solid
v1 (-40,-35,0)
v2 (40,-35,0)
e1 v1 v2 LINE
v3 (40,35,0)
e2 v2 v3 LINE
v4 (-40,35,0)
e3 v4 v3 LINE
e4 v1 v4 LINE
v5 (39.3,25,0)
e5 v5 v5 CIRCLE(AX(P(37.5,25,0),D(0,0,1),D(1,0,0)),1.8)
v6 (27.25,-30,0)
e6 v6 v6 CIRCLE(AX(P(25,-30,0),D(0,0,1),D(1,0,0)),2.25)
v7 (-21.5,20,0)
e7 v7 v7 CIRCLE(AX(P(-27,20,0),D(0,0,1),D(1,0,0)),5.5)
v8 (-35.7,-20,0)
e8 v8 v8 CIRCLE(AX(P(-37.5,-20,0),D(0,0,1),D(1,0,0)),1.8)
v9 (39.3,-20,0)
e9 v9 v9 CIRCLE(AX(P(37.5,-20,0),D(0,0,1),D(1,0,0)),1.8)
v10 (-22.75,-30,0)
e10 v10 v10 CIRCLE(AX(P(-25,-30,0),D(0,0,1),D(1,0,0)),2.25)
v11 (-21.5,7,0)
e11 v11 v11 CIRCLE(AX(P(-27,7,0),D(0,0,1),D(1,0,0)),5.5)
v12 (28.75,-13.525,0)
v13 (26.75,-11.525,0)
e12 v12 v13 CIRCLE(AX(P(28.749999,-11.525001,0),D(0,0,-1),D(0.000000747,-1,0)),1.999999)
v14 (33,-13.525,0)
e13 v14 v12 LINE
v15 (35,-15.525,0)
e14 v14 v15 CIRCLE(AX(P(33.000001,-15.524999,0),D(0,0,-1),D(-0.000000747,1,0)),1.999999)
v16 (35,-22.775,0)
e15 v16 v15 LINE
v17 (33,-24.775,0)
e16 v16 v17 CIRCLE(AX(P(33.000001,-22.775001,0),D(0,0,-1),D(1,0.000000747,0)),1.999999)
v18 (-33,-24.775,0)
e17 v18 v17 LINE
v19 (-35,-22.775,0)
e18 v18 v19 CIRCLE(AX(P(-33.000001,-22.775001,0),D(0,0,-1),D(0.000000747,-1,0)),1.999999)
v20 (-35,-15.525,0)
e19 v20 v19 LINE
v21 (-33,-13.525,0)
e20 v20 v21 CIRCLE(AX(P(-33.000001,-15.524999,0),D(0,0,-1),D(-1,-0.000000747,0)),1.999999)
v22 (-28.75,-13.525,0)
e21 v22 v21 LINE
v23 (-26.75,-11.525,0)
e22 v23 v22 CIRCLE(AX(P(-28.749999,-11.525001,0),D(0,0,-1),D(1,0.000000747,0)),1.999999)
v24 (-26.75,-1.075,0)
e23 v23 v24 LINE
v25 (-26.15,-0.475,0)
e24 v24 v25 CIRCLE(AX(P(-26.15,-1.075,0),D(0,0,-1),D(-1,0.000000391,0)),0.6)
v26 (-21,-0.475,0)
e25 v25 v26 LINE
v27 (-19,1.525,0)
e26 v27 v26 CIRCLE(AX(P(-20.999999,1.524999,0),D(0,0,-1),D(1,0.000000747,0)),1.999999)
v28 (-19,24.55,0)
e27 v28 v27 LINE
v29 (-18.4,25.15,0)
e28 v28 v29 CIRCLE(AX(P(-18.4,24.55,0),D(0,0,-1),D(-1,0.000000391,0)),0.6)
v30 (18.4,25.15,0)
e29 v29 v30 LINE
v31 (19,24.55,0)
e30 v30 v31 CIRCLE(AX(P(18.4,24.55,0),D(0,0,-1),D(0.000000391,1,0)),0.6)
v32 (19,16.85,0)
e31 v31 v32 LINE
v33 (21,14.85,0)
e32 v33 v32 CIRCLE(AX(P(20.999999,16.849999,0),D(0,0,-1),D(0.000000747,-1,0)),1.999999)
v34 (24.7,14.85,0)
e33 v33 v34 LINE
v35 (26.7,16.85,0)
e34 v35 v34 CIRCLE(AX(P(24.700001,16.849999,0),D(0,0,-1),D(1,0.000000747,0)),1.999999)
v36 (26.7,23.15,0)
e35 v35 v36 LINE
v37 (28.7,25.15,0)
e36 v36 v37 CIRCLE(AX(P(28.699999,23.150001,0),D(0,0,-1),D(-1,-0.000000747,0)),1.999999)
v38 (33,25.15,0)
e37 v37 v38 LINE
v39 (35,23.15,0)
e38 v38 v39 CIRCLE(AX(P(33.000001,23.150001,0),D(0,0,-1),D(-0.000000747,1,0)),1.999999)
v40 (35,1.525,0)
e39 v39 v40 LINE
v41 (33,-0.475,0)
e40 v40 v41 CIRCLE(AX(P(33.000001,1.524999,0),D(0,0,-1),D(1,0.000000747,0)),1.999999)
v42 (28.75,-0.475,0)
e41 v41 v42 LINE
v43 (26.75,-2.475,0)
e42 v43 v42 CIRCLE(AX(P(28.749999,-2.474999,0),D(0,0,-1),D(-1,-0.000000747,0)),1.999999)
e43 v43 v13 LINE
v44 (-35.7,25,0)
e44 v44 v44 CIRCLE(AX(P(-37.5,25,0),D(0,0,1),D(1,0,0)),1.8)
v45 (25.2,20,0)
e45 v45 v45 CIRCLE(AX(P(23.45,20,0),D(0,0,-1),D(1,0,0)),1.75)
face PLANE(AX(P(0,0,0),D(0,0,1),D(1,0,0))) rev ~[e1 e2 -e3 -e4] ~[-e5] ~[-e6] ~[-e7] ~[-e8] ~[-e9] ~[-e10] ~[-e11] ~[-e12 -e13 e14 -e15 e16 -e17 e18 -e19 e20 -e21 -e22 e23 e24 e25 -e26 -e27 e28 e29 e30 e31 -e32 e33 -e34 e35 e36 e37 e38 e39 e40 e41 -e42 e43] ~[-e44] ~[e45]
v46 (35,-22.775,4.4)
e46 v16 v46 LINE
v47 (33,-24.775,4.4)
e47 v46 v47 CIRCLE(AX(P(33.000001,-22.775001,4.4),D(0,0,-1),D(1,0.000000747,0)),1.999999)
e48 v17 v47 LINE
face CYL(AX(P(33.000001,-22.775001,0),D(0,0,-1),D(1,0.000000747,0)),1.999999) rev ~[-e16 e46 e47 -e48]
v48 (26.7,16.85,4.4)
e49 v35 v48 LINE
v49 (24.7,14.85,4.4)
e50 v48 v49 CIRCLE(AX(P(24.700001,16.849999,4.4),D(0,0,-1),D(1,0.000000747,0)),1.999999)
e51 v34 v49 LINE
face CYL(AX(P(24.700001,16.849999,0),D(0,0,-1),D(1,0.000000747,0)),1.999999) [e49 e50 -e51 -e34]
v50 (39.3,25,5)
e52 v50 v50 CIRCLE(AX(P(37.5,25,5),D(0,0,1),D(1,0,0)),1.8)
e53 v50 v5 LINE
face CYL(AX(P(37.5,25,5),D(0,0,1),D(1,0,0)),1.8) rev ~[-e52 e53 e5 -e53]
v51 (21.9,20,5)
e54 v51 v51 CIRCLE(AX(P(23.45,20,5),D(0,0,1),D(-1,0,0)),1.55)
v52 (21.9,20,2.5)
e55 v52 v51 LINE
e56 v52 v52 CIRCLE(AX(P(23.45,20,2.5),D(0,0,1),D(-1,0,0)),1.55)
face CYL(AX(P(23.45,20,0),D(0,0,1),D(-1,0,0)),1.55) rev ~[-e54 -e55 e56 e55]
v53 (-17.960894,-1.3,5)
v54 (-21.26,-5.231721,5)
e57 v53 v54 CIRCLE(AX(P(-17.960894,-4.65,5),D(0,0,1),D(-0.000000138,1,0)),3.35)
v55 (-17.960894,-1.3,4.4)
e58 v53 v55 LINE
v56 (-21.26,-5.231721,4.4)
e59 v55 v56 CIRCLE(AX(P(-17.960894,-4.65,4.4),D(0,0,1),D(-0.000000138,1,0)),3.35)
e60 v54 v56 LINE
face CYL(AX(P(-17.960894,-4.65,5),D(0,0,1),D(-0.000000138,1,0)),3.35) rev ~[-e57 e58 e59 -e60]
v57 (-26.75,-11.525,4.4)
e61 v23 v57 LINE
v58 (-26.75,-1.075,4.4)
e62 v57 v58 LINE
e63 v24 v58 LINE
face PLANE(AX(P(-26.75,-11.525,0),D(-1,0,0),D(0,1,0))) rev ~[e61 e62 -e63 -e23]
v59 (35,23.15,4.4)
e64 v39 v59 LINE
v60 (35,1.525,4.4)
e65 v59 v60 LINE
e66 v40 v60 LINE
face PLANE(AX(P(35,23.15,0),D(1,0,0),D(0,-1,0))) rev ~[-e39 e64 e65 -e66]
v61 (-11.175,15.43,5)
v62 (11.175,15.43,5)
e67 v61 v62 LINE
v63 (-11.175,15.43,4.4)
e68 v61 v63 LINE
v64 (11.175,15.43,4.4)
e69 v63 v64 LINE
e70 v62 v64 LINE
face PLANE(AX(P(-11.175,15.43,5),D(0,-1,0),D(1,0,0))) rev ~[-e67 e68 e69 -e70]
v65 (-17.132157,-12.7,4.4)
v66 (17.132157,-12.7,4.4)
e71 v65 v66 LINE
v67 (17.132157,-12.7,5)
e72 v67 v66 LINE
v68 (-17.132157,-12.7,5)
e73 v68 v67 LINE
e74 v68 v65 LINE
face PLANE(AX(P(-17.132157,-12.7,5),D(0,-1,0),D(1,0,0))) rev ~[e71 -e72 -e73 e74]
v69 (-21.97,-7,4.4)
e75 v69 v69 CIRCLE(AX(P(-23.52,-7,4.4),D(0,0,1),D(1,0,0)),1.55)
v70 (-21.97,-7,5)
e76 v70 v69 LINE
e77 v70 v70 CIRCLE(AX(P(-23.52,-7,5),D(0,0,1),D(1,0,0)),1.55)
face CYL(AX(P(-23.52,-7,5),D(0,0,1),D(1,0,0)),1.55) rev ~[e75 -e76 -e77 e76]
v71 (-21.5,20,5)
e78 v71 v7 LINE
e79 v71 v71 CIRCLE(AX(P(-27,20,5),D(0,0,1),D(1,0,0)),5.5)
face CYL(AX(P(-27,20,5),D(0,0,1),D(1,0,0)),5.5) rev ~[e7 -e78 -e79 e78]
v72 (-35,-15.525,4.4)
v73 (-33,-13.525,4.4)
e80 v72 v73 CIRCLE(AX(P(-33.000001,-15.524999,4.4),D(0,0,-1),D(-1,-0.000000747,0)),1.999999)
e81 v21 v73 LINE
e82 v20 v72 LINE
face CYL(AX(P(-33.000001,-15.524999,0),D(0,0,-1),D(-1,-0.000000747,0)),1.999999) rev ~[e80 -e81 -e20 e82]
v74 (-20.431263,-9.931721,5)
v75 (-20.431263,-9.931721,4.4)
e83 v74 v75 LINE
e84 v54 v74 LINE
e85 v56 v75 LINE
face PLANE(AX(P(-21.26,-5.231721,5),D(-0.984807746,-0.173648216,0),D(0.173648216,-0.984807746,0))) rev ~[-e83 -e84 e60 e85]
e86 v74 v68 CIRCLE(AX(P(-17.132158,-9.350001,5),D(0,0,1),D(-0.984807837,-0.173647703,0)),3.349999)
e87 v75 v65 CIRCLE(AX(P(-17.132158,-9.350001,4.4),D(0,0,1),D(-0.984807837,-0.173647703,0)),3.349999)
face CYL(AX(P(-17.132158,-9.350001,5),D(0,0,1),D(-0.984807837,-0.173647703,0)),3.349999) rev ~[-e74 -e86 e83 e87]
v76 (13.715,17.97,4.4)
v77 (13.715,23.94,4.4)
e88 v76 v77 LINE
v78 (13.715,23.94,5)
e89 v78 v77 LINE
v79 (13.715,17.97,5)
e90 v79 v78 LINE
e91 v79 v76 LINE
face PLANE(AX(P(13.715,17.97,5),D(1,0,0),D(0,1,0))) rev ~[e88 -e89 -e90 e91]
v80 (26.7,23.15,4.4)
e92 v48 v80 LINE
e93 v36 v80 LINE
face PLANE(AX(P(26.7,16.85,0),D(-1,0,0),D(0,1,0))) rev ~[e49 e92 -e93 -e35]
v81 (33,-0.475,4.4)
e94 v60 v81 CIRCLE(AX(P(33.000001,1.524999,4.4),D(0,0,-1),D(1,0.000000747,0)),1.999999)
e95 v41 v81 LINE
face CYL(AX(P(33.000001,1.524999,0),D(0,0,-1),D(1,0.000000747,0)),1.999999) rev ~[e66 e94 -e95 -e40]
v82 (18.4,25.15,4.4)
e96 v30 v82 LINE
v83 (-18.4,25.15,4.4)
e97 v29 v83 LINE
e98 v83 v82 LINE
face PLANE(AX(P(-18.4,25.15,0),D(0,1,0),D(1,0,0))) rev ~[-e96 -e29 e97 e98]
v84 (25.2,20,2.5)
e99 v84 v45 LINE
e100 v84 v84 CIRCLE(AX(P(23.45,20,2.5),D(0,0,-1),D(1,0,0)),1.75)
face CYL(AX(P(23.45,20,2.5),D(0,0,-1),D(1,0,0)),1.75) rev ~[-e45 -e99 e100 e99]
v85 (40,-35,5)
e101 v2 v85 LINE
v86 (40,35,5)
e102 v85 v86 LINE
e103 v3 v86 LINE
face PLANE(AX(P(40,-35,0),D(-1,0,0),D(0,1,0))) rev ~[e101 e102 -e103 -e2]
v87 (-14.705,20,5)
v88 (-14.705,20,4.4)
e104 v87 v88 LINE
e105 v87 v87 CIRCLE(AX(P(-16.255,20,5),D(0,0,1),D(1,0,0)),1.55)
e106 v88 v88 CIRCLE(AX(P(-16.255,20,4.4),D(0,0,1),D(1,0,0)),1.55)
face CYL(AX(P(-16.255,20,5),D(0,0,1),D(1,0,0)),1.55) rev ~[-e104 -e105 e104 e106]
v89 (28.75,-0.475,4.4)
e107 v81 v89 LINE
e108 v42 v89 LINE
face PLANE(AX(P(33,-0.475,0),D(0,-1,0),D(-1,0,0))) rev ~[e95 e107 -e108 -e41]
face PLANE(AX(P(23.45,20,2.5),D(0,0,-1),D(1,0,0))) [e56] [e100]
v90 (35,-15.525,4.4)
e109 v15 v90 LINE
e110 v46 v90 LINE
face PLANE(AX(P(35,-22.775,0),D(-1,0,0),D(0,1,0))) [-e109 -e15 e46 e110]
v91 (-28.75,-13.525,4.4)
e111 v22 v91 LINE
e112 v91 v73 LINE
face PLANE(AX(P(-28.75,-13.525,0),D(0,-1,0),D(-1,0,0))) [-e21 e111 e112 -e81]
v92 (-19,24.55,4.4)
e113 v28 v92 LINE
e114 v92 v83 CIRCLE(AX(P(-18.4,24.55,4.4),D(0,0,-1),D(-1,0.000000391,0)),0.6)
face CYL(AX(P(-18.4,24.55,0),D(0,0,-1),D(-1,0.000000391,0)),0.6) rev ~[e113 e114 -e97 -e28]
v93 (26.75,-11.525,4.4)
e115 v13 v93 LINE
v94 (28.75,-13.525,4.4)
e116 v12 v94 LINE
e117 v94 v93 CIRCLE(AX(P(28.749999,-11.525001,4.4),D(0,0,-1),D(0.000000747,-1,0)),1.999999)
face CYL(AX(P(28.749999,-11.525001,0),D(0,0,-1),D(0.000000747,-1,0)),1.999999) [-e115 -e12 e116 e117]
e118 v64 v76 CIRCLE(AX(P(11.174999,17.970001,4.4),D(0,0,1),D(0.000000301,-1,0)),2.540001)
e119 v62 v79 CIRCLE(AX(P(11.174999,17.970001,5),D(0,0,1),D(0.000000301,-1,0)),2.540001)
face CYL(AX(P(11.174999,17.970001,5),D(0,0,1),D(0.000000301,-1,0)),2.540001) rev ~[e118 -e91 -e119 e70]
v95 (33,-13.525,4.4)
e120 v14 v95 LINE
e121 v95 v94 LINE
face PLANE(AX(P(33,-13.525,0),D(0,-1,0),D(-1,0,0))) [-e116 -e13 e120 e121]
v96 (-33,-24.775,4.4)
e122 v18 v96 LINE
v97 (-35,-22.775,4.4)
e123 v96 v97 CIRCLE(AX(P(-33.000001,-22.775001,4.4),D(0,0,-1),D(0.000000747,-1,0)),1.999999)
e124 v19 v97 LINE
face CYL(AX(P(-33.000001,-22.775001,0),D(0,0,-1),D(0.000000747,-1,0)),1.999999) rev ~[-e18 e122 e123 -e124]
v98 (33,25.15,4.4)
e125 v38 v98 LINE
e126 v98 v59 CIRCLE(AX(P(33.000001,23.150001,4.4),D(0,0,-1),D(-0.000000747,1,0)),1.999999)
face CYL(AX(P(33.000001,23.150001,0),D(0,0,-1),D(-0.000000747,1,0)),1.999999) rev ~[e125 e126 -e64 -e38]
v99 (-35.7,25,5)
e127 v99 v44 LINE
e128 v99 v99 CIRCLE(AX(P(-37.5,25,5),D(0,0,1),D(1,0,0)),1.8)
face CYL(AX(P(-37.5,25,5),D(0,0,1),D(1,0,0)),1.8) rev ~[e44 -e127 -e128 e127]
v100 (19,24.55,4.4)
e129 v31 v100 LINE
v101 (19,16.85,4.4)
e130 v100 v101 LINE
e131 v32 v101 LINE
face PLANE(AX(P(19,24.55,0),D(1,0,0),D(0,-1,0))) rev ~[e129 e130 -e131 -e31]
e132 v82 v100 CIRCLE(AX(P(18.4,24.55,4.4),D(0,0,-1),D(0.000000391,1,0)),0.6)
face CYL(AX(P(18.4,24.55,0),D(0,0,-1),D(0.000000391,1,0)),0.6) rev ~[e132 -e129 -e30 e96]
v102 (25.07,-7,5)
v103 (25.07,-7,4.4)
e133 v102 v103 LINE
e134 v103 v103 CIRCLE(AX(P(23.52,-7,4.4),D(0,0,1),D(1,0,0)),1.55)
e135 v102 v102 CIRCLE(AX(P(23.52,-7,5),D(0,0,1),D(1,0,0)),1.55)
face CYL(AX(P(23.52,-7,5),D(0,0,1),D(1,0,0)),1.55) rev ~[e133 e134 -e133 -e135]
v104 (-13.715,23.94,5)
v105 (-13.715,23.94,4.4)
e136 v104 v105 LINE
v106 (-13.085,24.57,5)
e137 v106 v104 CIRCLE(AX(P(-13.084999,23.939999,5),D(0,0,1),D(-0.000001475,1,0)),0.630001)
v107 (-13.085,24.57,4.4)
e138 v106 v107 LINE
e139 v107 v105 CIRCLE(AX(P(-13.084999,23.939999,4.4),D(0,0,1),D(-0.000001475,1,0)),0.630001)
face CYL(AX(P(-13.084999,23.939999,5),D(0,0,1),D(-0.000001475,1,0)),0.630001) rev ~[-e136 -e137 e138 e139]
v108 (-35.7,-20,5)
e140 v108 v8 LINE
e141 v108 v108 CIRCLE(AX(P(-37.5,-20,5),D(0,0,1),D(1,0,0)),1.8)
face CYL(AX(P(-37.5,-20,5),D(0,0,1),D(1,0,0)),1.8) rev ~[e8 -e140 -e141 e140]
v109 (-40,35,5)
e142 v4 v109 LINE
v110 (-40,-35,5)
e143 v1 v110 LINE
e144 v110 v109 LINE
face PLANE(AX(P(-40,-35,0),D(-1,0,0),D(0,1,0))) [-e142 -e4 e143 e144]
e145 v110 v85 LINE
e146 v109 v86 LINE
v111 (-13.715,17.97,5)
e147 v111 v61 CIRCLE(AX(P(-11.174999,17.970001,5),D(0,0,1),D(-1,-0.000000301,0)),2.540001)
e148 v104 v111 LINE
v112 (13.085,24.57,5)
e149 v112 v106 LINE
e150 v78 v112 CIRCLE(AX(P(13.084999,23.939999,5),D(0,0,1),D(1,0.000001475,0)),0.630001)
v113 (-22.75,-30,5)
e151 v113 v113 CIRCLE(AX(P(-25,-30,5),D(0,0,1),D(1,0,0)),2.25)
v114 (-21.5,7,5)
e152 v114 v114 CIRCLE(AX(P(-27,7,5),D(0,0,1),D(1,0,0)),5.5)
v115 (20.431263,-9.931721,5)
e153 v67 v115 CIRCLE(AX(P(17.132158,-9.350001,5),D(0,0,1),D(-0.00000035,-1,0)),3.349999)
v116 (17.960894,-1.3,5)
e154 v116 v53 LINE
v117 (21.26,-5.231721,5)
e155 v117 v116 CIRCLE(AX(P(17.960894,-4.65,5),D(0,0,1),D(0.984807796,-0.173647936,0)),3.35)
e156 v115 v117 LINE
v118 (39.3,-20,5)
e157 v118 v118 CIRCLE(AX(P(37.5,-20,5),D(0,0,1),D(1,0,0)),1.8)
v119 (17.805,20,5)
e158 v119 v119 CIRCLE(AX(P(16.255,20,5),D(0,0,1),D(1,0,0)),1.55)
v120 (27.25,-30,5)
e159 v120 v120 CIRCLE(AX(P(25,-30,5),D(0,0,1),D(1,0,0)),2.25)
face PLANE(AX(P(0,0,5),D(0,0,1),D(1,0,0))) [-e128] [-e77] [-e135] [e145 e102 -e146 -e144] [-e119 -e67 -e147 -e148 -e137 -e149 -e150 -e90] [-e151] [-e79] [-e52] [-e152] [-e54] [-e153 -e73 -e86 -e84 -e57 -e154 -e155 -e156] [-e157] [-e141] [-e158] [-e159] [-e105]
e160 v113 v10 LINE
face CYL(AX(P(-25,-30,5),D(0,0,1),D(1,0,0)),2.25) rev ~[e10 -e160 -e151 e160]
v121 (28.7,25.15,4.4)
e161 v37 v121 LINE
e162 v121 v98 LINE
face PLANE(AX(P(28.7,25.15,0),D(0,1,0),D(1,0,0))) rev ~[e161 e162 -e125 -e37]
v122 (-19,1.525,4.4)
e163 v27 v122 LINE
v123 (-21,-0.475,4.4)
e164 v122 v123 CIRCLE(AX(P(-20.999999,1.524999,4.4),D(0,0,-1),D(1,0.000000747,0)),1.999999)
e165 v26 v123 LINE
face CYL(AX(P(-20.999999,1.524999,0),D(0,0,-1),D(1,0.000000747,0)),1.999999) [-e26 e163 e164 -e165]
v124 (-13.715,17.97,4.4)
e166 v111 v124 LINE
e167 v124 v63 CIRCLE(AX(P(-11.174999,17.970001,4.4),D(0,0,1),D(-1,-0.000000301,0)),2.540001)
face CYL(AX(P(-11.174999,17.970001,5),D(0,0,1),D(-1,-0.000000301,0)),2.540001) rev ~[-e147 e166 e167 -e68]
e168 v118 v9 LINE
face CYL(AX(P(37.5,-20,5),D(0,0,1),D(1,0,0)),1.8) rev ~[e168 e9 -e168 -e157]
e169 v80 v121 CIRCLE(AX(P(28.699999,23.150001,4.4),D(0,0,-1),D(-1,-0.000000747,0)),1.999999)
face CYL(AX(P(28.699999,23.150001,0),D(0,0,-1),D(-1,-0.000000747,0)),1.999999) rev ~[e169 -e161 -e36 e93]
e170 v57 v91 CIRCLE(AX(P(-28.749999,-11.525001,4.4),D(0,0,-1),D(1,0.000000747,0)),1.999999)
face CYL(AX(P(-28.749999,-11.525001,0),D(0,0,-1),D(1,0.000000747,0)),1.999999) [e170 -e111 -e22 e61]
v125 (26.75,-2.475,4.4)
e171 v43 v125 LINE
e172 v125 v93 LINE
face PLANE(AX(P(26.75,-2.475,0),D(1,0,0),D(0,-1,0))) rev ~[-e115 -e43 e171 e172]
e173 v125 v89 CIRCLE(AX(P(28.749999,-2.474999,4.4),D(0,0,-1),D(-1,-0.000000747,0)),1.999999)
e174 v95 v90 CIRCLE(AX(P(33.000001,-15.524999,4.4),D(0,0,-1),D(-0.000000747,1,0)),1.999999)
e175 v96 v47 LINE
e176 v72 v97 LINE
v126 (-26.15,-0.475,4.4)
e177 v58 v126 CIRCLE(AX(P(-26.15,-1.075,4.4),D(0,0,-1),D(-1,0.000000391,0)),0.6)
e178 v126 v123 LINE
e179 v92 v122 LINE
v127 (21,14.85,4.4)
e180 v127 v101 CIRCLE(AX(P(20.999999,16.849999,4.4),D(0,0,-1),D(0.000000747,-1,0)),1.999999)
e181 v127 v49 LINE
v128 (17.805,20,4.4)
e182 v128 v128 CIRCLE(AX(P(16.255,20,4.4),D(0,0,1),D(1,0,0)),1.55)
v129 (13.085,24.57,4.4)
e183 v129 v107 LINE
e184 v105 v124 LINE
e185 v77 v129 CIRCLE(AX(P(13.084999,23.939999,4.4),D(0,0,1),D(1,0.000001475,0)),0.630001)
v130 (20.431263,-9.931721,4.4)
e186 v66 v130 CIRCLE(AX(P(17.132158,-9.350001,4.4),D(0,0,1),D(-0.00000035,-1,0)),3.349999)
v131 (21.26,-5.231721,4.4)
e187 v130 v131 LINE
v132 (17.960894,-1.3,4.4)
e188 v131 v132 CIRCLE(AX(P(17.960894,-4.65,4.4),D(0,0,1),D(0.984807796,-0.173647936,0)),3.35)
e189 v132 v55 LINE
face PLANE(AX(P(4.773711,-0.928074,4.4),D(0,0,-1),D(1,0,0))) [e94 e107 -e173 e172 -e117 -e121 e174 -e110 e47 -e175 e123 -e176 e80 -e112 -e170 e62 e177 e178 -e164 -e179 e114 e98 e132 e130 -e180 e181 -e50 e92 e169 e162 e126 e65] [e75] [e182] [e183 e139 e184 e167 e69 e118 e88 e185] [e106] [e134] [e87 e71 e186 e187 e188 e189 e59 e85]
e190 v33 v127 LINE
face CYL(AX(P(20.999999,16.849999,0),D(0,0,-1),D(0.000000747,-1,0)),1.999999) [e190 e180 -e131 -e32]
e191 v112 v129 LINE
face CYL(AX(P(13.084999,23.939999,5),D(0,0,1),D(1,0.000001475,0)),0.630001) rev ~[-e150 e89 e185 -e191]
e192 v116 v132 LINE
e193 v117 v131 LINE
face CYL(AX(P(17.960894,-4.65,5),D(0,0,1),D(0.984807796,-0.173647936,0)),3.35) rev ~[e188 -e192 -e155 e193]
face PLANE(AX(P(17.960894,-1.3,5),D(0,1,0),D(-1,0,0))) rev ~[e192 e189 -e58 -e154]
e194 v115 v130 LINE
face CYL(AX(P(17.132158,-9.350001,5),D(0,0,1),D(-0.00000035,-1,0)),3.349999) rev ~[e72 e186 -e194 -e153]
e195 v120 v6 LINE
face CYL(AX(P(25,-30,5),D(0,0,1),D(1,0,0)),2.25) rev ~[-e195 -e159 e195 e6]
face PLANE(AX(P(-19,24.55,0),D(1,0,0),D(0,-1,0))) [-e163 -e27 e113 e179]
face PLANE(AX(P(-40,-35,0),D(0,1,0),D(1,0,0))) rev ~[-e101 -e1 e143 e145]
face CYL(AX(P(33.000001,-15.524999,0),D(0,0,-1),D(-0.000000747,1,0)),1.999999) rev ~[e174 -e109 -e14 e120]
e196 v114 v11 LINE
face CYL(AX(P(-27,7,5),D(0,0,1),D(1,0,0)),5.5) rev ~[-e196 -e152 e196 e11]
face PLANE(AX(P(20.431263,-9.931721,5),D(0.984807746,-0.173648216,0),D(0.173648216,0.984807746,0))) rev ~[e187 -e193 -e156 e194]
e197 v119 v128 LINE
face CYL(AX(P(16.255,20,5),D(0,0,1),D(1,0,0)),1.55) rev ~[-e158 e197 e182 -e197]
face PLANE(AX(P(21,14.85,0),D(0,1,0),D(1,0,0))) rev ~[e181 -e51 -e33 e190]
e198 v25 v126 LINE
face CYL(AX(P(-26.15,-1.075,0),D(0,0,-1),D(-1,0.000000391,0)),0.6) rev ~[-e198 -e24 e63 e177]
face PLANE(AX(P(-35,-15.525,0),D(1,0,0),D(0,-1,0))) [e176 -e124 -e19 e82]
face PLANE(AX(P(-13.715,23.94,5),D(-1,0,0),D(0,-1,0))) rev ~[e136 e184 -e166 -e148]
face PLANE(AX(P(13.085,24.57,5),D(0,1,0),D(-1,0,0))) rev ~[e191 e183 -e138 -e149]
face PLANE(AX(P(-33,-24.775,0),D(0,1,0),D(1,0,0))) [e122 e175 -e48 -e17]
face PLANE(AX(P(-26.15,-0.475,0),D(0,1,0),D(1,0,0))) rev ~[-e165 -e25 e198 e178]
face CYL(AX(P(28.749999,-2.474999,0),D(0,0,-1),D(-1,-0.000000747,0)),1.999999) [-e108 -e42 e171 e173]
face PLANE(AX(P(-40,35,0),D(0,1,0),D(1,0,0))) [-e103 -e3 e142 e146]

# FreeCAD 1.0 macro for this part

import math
import FreeCAD as App
import Part
import Sketcher
from FreeCAD import Vector
Q = App.Units.Quantity


def add_polygon(sketch, points):
    """Adds a closed chain of lines whose ends are joined by coincident constraints."""
    first, n = sketch.GeometryCount, len(points)
    for a, b in zip(points, points[1:] + points[:1]):
        sketch.addGeometry(Part.LineSegment(App.Vector(*a, 0), App.Vector(*b, 0)), False)
    for i in range(n):
        sketch.addConstraint(Sketcher.Constraint("Coincident", first + i, 2, first + (i + 1) % n, 1))

doc = App.newDocument("Part")
body = doc.addObject("PartDesign::Body", "Body")

# Sketch on XY plane
sketch1 = body.newObject("Sketcher::SketchObject", "Sketch")
sketch1.AttachmentSupport = (doc.getObject("XY_Plane"), [""])
sketch1.MapMode = "FlatFace"
add_polygon(sketch1, [(-40, 35), (-40, -35), (40, -35), (40, 35)])  # lines 0-3
sketch1.addConstraint(Sketcher.Constraint("Vertical", 0))
sketch1.addConstraint(Sketcher.Constraint("Horizontal", 1))
sketch1.addConstraint(Sketcher.Constraint("Vertical", 2))
sketch1.addConstraint(Sketcher.Constraint("Horizontal", 3))
sketch1.addConstraint(Sketcher.Constraint("Symmetric", 0, 2, 2, 2, -1, 1))
sketch1.addConstraint(Sketcher.Constraint("DistanceX", 1, 1, 1, 2, Q("80 mm")))
sketch1.addConstraint(Sketcher.Constraint("DistanceY", 0, 2, 0, 1, Q("70 mm")))
pad1 = body.newObject("PartDesign::Pad", "Pad")
pad1.Profile = sketch1
pad1.Length = 5

# Sketch on XY plane
sketch2 = body.newObject("Sketcher::SketchObject", "Sketch001")
sketch2.AttachmentSupport = (doc.getObject("XY_Plane"), [""])
sketch2.MapMode = "FlatFace"
sketch2.AttachmentOffset = App.Placement(Vector(0, 0, 5), App.Rotation())
sketch2.addGeometry(Part.Circle(Vector(-37.5, 25, 0), Vector(0, 0, 1), 1.8), False)
sketch2.addGeometry(Part.Circle(Vector(37.5, 25, 0), Vector(0, 0, 1), 1.8), False)
sketch2.addGeometry(Part.Circle(Vector(-37.5, -20, 0), Vector(0, 0, 1), 1.8), False)
sketch2.addGeometry(Part.Circle(Vector(37.5, -20, 0), Vector(0, 0, 1), 1.8), False)
sketch2.addConstraint(Sketcher.Constraint("Equal", 0, 1))
sketch2.addConstraint(Sketcher.Constraint("Equal", 1, 2))
sketch2.addConstraint(Sketcher.Constraint("Equal", 2, 3))
sketch2.addConstraint(Sketcher.Constraint("Symmetric", 0, 3, 1, 3, -2))
sketch2.addConstraint(Sketcher.Constraint("Symmetric", 2, 3, 3, 3, -2))
sketch2.addConstraint(Sketcher.Constraint("Vertical", 0, 3, 2, 3))
sketch2.addConstraint(Sketcher.Constraint("Diameter", 0, Q("3.6 mm")))
sketch2.addConstraint(Sketcher.Constraint("DistanceY", -1, 1, 0, 3, Q("25 mm")))
sketch2.addConstraint(Sketcher.Constraint("DistanceY", 2, 3, -1, 1, Q("20 mm")))
sketch2.addConstraint(Sketcher.Constraint("DistanceX", 0, 3, 1, 3, Q("75 mm")))
pocket1 = body.newObject("PartDesign::Pocket", "Pocket")
pocket1.Profile = sketch2
pocket1.Type = "ThroughAll"

# Sketch on XY plane
sketch3 = body.newObject("Sketcher::SketchObject", "Sketch002")
sketch3.AttachmentSupport = (doc.getObject("XY_Plane"), [""])
sketch3.MapMode = "FlatFace"
sketch3.AttachmentOffset = App.Placement(Vector(0, 0, 5), App.Rotation())
sketch3.addGeometry(Part.Circle(Vector(-25, -30, 0), Vector(0, 0, 1), 2.25), False)
sketch3.addGeometry(Part.Circle(Vector(25, -30, 0), Vector(0, 0, 1), 2.25), False)
sketch3.addConstraint(Sketcher.Constraint("Equal", 0, 1))
sketch3.addConstraint(Sketcher.Constraint("Symmetric", 0, 3, 1, 3, -2))
sketch3.addConstraint(Sketcher.Constraint("Diameter", 0, Q("4.5 mm")))
sketch3.addConstraint(Sketcher.Constraint("DistanceX", 0, 3, -1, 1, Q("25 mm")))
sketch3.addConstraint(Sketcher.Constraint("DistanceY", 0, 3, -1, 1, Q("30 mm")))
pocket2 = body.newObject("PartDesign::Pocket", "Pocket001")
pocket2.Profile = sketch3
pocket2.Type = "ThroughAll"

# Sketch on XY plane
sketch4 = body.newObject("Sketcher::SketchObject", "Sketch003")
sketch4.AttachmentSupport = (doc.getObject("XY_Plane"), [""])
sketch4.MapMode = "FlatFace"
sketch4.AttachmentOffset = App.Placement(Vector(0, 0, 5), App.Rotation())
sketch4.addGeometry(Part.Circle(Vector(-16.255, 20, 0), Vector(0, 0, 1), 1.55), False)
sketch4.addGeometry(Part.Circle(Vector(16.255, 20, 0), Vector(0, 0, 1), 1.55), False)
sketch4.addGeometry(Part.Circle(Vector(-23.52, -7, 0), Vector(0, 0, 1), 1.55), False)
sketch4.addGeometry(Part.Circle(Vector(23.52, -7, 0), Vector(0, 0, 1), 1.55), False)
sketch4.addConstraint(Sketcher.Constraint("Equal", 0, 1))
sketch4.addConstraint(Sketcher.Constraint("Equal", 1, 2))
sketch4.addConstraint(Sketcher.Constraint("Equal", 2, 3))
sketch4.addConstraint(Sketcher.Constraint("Symmetric", 0, 3, 1, 3, -2))
sketch4.addConstraint(Sketcher.Constraint("Symmetric", 2, 3, 3, 3, -2))
sketch4.addConstraint(Sketcher.Constraint("Diameter", 0, Q("3.1 mm")))
sketch4.addConstraint(Sketcher.Constraint("DistanceY", -1, 1, 0, 3, Q("20 mm")))
sketch4.addConstraint(Sketcher.Constraint("DistanceY", 2, 3, -1, 1, Q("7 mm")))
sketch4.addConstraint(Sketcher.Constraint("DistanceX", 2, 3, -1, 1, Q("23.52 mm")))
sketch4.addConstraint(Sketcher.Constraint("DistanceX", 0, 3, 1, 3, Q("32.51 mm")))
pocket3 = body.newObject("PartDesign::Pocket", "Pocket002")
pocket3.Profile = sketch4
pocket3.Type = "ThroughAll"

# Sketch on XY plane
sketch5 = body.newObject("Sketcher::SketchObject", "Sketch004")
sketch5.AttachmentSupport = (doc.getObject("XY_Plane"), [""])
sketch5.MapMode = "FlatFace"
sketch5.AttachmentOffset = App.Placement(Vector(0, 0, 5), App.Rotation())
sketch5.addGeometry(Part.Circle(Vector(-27, 7, 0), Vector(0, 0, 1), 5.5), False)
sketch5.addGeometry(Part.Circle(Vector(-27, 20, 0), Vector(0, 0, 1), 5.5), False)
sketch5.addConstraint(Sketcher.Constraint("Equal", 0, 1))
sketch5.addConstraint(Sketcher.Constraint("Vertical", 0, 3, 1, 3))
sketch5.addConstraint(Sketcher.Constraint("Diameter", 0, Q("11 mm")))
sketch5.addConstraint(Sketcher.Constraint("DistanceX", 0, 3, -1, 1, Q("27 mm")))
sketch5.addConstraint(Sketcher.Constraint("DistanceY", -1, 1, 0, 3, Q("7 mm")))
sketch5.addConstraint(Sketcher.Constraint("DistanceY", -1, 1, 1, 3, Q("20 mm")))
pocket4 = body.newObject("PartDesign::Pocket", "Pocket003")
pocket4.Profile = sketch5
pocket4.Length = 25

# Sketch on XY plane
sketch6 = body.newObject("Sketcher::SketchObject", "Sketch005")
sketch6.AttachmentSupport = (doc.getObject("XY_Plane"), [""])
sketch6.MapMode = "FlatFace"
sketch6.AttachmentOffset = App.Placement(Vector(0, 0, 5), App.Rotation())
sketch6.addGeometry(Part.LineSegment(Vector(-13.715, 23.94, 0), Vector(-13.715, 17.97, 0)), False)
sketch6.addGeometry(Part.ArcOfCircle(Part.Circle(Vector(-11.174999, 17.970001, 0), Vector(0, 0, 1), 2.540001), math.radians(-179.999983), math.radians(-90.000017)), False)
sketch6.addGeometry(Part.LineSegment(Vector(-11.175, 15.43, 0), Vector(11.175, 15.43, 0)), False)
sketch6.addGeometry(Part.ArcOfCircle(Part.Circle(Vector(11.174999, 17.970001, 0), Vector(0, 0, 1), 2.540001), math.radians(-89.999983), math.radians(-0.000017)), False)
sketch6.addGeometry(Part.LineSegment(Vector(13.715, 17.97, 0), Vector(13.715, 23.94, 0)), False)
sketch6.addGeometry(Part.ArcOfCircle(Part.Circle(Vector(13.084999, 23.939999, 0), Vector(0, 0, 1), 0.630001), math.radians(0.000084), math.radians(89.999916)), False)
sketch6.addGeometry(Part.LineSegment(Vector(13.085, 24.57, 0), Vector(-13.085, 24.57, 0)), False)
sketch6.addGeometry(Part.ArcOfCircle(Part.Circle(Vector(-13.084999, 23.939999, 0), Vector(0, 0, 1), 0.630001), math.radians(90.000084), math.radians(179.999916)), False)
sketch6.addGeometry(Part.LineSegment(Vector(-21.26, -5.231721, 0), Vector(-20.431263, -9.931721, 0)), False)
sketch6.addGeometry(Part.ArcOfCircle(Part.Circle(Vector(-17.132158, -9.350001, 0), Vector(0, 0, 1), 3.349999), math.radians(-170.000028), math.radians(-89.99998)), False)
sketch6.addGeometry(Part.LineSegment(Vector(-17.132157, -12.7, 0), Vector(17.132157, -12.7, 0)), False)
sketch6.addGeometry(Part.ArcOfCircle(Part.Circle(Vector(17.132158, -9.350001, 0), Vector(0, 0, 1), 3.349999), math.radians(-90.00002), math.radians(-9.999972)), False)
sketch6.addGeometry(Part.LineSegment(Vector(20.431263, -9.931721, 0), Vector(21.26, -5.231721, 0)), False)
sketch6.addGeometry(Part.ArcOfCircle(Part.Circle(Vector(17.960894, -4.65, 0), Vector(0, 0, 1), 3.35), math.radians(-9.999986), math.radians(89.999992)), False)
sketch6.addGeometry(Part.LineSegment(Vector(17.960894, -1.3, 0), Vector(-17.960894, -1.3, 0)), False)
sketch6.addGeometry(Part.ArcOfCircle(Part.Circle(Vector(-17.960894, -4.65, 0), Vector(0, 0, 1), 3.35), math.radians(90.000008), math.radians(189.999986)), False)
sketch6.addConstraint(Sketcher.Constraint("Tangent", 0, 2, 1, 1))
sketch6.addConstraint(Sketcher.Constraint("Tangent", 1, 2, 2, 1))
sketch6.addConstraint(Sketcher.Constraint("Tangent", 2, 2, 3, 1))
sketch6.addConstraint(Sketcher.Constraint("Tangent", 3, 2, 4, 1))
sketch6.addConstraint(Sketcher.Constraint("Tangent", 4, 2, 5, 1))
sketch6.addConstraint(Sketcher.Constraint("Tangent", 5, 2, 6, 1))
sketch6.addConstraint(Sketcher.Constraint("Tangent", 6, 2, 7, 1))
sketch6.addConstraint(Sketcher.Constraint("Tangent", 7, 2, 0, 1))
sketch6.addConstraint(Sketcher.Constraint("Tangent", 8, 2, 9, 1))
sketch6.addConstraint(Sketcher.Constraint("Tangent", 9, 2, 10, 1))
sketch6.addConstraint(Sketcher.Constraint("Tangent", 10, 2, 11, 1))
sketch6.addConstraint(Sketcher.Constraint("Tangent", 11, 2, 12, 1))
sketch6.addConstraint(Sketcher.Constraint("Tangent", 12, 2, 13, 1))
sketch6.addConstraint(Sketcher.Constraint("Tangent", 13, 2, 14, 1))
sketch6.addConstraint(Sketcher.Constraint("Tangent", 14, 2, 15, 1))
sketch6.addConstraint(Sketcher.Constraint("Tangent", 15, 2, 8, 1))
sketch6.addConstraint(Sketcher.Constraint("Vertical", 0))
sketch6.addConstraint(Sketcher.Constraint("Horizontal", 2))
sketch6.addConstraint(Sketcher.Constraint("Vertical", 4))
sketch6.addConstraint(Sketcher.Constraint("Horizontal", 6))
sketch6.addConstraint(Sketcher.Constraint("Horizontal", 10))
sketch6.addConstraint(Sketcher.Constraint("Horizontal", 14))
sketch6.addConstraint(Sketcher.Constraint("Equal", 1, 3))
sketch6.addConstraint(Sketcher.Constraint("Equal", 5, 7))
sketch6.addConstraint(Sketcher.Constraint("Equal", 9, 11))
sketch6.addConstraint(Sketcher.Constraint("Equal", 11, 13))
sketch6.addConstraint(Sketcher.Constraint("Equal", 13, 15))
sketch6.addConstraint(Sketcher.Constraint("Symmetric", 8, 2, 11, 2, -2))
sketch6.addConstraint(Sketcher.Constraint("Angle", 8, Q("-79.999998 deg")))
sketch6.addConstraint(Sketcher.Constraint("Radius", 1, Q("2.540001 mm")))
sketch6.addConstraint(Sketcher.Constraint("Radius", 5, Q("0.630001 mm")))
sketch6.addConstraint(Sketcher.Constraint("Radius", 9, Q("3.349999 mm")))
sketch6.addConstraint(Sketcher.Constraint("DistanceX", 2, 1, 2, 2, Q("22.35 mm")))
sketch6.addConstraint(Sketcher.Constraint("DistanceY", 0, 2, 0, 1, Q("5.97 mm")))
sketch6.addConstraint(Sketcher.Constraint("DistanceY", 9, 2, -1, 1, Q("12.7 mm")))
sketch6.addConstraint(Sketcher.Constraint("DistanceY", 13, 2, -1, 1, Q("1.3 mm")))
sketch6.addConstraint(Sketcher.Constraint("DistanceY", -1, 1, 1, 3, Q("17.970001 mm")))
sketch6.addConstraint(Sketcher.Constraint("DistanceX", -1, 1, 12, 2, Q("21.26 mm")))
sketch6.addConstraint(Sketcher.Constraint("DistanceX", 1, 3, -1, 1, Q("11.174999 mm")))
pocket5 = body.newObject("PartDesign::Pocket", "Pocket004")
pocket5.Profile = sketch6
pocket5.Type = "ThroughAll"

# Sketch on XY plane
sketch7 = body.newObject("Sketcher::SketchObject", "Sketch006")
sketch7.AttachmentSupport = (doc.getObject("XY_Plane"), [""])
sketch7.MapMode = "FlatFace"
sketch7.addGeometry(Part.Circle(Vector(23.45, 20, 0), Vector(0, 0, 1), 1.55), False)
sketch7.addConstraint(Sketcher.Constraint("Diameter", 0, Q("3.1 mm")))
sketch7.addConstraint(Sketcher.Constraint("DistanceY", -1, 1, 0, 3, Q("20 mm")))
sketch7.addConstraint(Sketcher.Constraint("DistanceX", -1, 1, 0, 3, Q("23.45 mm")))
doc.recompute()
hole = body.newObject("PartDesign::Hole", "Hole")
hole.Profile = sketch7
hole.ThreadType = "None"
hole.Diameter = 3.1
hole.DepthType = "ThroughAll"
hole.HoleCutType = "Counterbore"
hole.HoleCutDiameter = 3.5
hole.HoleCutDepth = 2.5
hole.Reversed = True

# Sketch on XY plane
sketch8 = body.newObject("Sketcher::SketchObject", "Sketch007")
sketch8.AttachmentSupport = (doc.getObject("XY_Plane"), [""])
sketch8.MapMode = "FlatFace"
sketch8.addGeometry(Part.LineSegment(Vector(-18.4, 25.15, 0), Vector(18.4, 25.15, 0)), False)
sketch8.addGeometry(Part.ArcOfCircle(Part.Circle(Vector(18.4, 24.55, 0), Vector(0, 0, 1), 0.6), math.radians(0.000022), math.radians(89.999978)), False)
sketch8.addGeometry(Part.LineSegment(Vector(19, 24.55, 0), Vector(19, 16.85, 0)), False)
sketch8.addGeometry(Part.ArcOfCircle(Part.Circle(Vector(20.999999, 16.849999, 0), Vector(0, 0, 1), 1.999999), math.radians(179.999957), math.radians(270.000043)), False)
sketch8.addGeometry(Part.LineSegment(Vector(21, 14.85, 0), Vector(24.7, 14.85, 0)), False)
sketch8.addGeometry(Part.ArcOfCircle(Part.Circle(Vector(24.700001, 16.849999, 0), Vector(0, 0, 1), 1.999999), math.radians(-90.000043), math.radians(0.000043)), False)
sketch8.addGeometry(Part.LineSegment(Vector(26.7, 16.85, 0), Vector(26.7, 23.15, 0)), False)
sketch8.addGeometry(Part.ArcOfCircle(Part.Circle(Vector(28.699999, 23.150001, 0), Vector(0, 0, 1), 1.999999), math.radians(89.999957), math.radians(180.000043)), False)
sketch8.addGeometry(Part.LineSegment(Vector(28.7, 25.15, 0), Vector(33, 25.15, 0)), False)
sketch8.addGeometry(Part.ArcOfCircle(Part.Circle(Vector(33.000001, 23.150001, 0), Vector(0, 0, 1), 1.999999), math.radians(-0.000043), math.radians(90.000043)), False)
sketch8.addGeometry(Part.LineSegment(Vector(35, 23.15, 0), Vector(35, 1.525, 0)), False)
sketch8.addGeometry(Part.ArcOfCircle(Part.Circle(Vector(33.000001, 1.524999, 0), Vector(0, 0, 1), 1.999999), math.radians(-90.000043), math.radians(0.000043)), False)
sketch8.addGeometry(Part.LineSegment(Vector(33, -0.475, 0), Vector(28.75, -0.475, 0)), False)
sketch8.addGeometry(Part.ArcOfCircle(Part.Circle(Vector(28.749999, -2.474999, 0), Vector(0, 0, 1), 1.999999), math.radians(89.999957), math.radians(180.000043)), False)
sketch8.addGeometry(Part.LineSegment(Vector(26.75, -2.475, 0), Vector(26.75, -11.525, 0)), False)
sketch8.addGeometry(Part.ArcOfCircle(Part.Circle(Vector(28.749999, -11.525001, 0), Vector(0, 0, 1), 1.999999), math.radians(179.999957), math.radians(270.000043)), False)
sketch8.addGeometry(Part.LineSegment(Vector(28.75, -13.525, 0), Vector(33, -13.525, 0)), False)
sketch8.addGeometry(Part.ArcOfCircle(Part.Circle(Vector(33.000001, -15.524999, 0), Vector(0, 0, 1), 1.999999), math.radians(-0.000043), math.radians(90.000043)), False)
sketch8.addGeometry(Part.LineSegment(Vector(35, -15.525, 0), Vector(35, -22.775, 0)), False)
sketch8.addGeometry(Part.ArcOfCircle(Part.Circle(Vector(33.000001, -22.775001, 0), Vector(0, 0, 1), 1.999999), math.radians(-90.000043), math.radians(0.000043)), False)
sketch8.addGeometry(Part.LineSegment(Vector(33, -24.775, 0), Vector(-33, -24.775, 0)), False)
sketch8.addGeometry(Part.ArcOfCircle(Part.Circle(Vector(-33.000001, -22.775001, 0), Vector(0, 0, 1), 1.999999), math.radians(179.999957), math.radians(270.000043)), False)
sketch8.addGeometry(Part.LineSegment(Vector(-35, -22.775, 0), Vector(-35, -15.525, 0)), False)
sketch8.addGeometry(Part.ArcOfCircle(Part.Circle(Vector(-33.000001, -15.524999, 0), Vector(0, 0, 1), 1.999999), math.radians(89.999957), math.radians(180.000043)), False)
sketch8.addGeometry(Part.LineSegment(Vector(-33, -13.525, 0), Vector(-28.75, -13.525, 0)), False)
sketch8.addGeometry(Part.ArcOfCircle(Part.Circle(Vector(-28.749999, -11.525001, 0), Vector(0, 0, 1), 1.999999), math.radians(-90.000043), math.radians(0.000043)), False)
sketch8.addGeometry(Part.LineSegment(Vector(-26.75, -11.525, 0), Vector(-26.75, -1.075, 0)), False)
sketch8.addGeometry(Part.ArcOfCircle(Part.Circle(Vector(-26.15, -1.075, 0), Vector(0, 0, 1), 0.6), math.radians(90.000022), math.radians(179.999978)), False)
sketch8.addGeometry(Part.LineSegment(Vector(-26.15, -0.475, 0), Vector(-21, -0.475, 0)), False)
sketch8.addGeometry(Part.ArcOfCircle(Part.Circle(Vector(-20.999999, 1.524999, 0), Vector(0, 0, 1), 1.999999), math.radians(-90.000043), math.radians(0.000043)), False)
sketch8.addGeometry(Part.LineSegment(Vector(-19, 1.525, 0), Vector(-19, 24.55, 0)), False)
sketch8.addGeometry(Part.ArcOfCircle(Part.Circle(Vector(-18.4, 24.55, 0), Vector(0, 0, 1), 0.6), math.radians(90.000022), math.radians(179.999978)), False)
sketch8.addConstraint(Sketcher.Constraint("Tangent", 0, 2, 1, 2))
sketch8.addConstraint(Sketcher.Constraint("Tangent", 1, 1, 2, 1))
sketch8.addConstraint(Sketcher.Constraint("Tangent", 2, 2, 3, 1))
sketch8.addConstraint(Sketcher.Constraint("Tangent", 3, 2, 4, 1))
sketch8.addConstraint(Sketcher.Constraint("Tangent", 4, 2, 5, 1))
sketch8.addConstraint(Sketcher.Constraint("Tangent", 5, 2, 6, 1))
sketch8.addConstraint(Sketcher.Constraint("Tangent", 6, 2, 7, 2))
sketch8.addConstraint(Sketcher.Constraint("Tangent", 7, 1, 8, 1))
sketch8.addConstraint(Sketcher.Constraint("Tangent", 8, 2, 9, 2))
sketch8.addConstraint(Sketcher.Constraint("Tangent", 9, 1, 10, 1))
sketch8.addConstraint(Sketcher.Constraint("Tangent", 10, 2, 11, 2))
sketch8.addConstraint(Sketcher.Constraint("Tangent", 11, 1, 12, 1))
sketch8.addConstraint(Sketcher.Constraint("Tangent", 12, 2, 13, 1))
sketch8.addConstraint(Sketcher.Constraint("Tangent", 13, 2, 14, 1))
sketch8.addConstraint(Sketcher.Constraint("Tangent", 14, 2, 15, 1))
sketch8.addConstraint(Sketcher.Constraint("Tangent", 15, 2, 16, 1))
sketch8.addConstraint(Sketcher.Constraint("Tangent", 16, 2, 17, 2))
sketch8.addConstraint(Sketcher.Constraint("Tangent", 17, 1, 18, 1))
sketch8.addConstraint(Sketcher.Constraint("Tangent", 18, 2, 19, 2))
sketch8.addConstraint(Sketcher.Constraint("Tangent", 19, 1, 20, 1))
sketch8.addConstraint(Sketcher.Constraint("Tangent", 20, 2, 21, 2))
sketch8.addConstraint(Sketcher.Constraint("Tangent", 21, 1, 22, 1))
sketch8.addConstraint(Sketcher.Constraint("Tangent", 22, 2, 23, 2))
sketch8.addConstraint(Sketcher.Constraint("Tangent", 23, 1, 24, 1))
sketch8.addConstraint(Sketcher.Constraint("Tangent", 24, 2, 25, 1))
sketch8.addConstraint(Sketcher.Constraint("Tangent", 25, 2, 26, 1))
sketch8.addConstraint(Sketcher.Constraint("Tangent", 26, 2, 27, 2))
sketch8.addConstraint(Sketcher.Constraint("Tangent", 27, 1, 28, 1))
sketch8.addConstraint(Sketcher.Constraint("Tangent", 28, 2, 29, 1))
sketch8.addConstraint(Sketcher.Constraint("Tangent", 29, 2, 30, 1))
sketch8.addConstraint(Sketcher.Constraint("Tangent", 30, 2, 31, 2))
sketch8.addConstraint(Sketcher.Constraint("Tangent", 31, 1, 0, 1))
sketch8.addConstraint(Sketcher.Constraint("Horizontal", 0))
sketch8.addConstraint(Sketcher.Constraint("Vertical", 2))
sketch8.addConstraint(Sketcher.Constraint("Horizontal", 4))
sketch8.addConstraint(Sketcher.Constraint("Vertical", 6))
sketch8.addConstraint(Sketcher.Constraint("Horizontal", 8))
sketch8.addConstraint(Sketcher.Constraint("Vertical", 10))
sketch8.addConstraint(Sketcher.Constraint("Horizontal", 12))
sketch8.addConstraint(Sketcher.Constraint("Vertical", 14))
sketch8.addConstraint(Sketcher.Constraint("Horizontal", 16))
sketch8.addConstraint(Sketcher.Constraint("Vertical", 18))
sketch8.addConstraint(Sketcher.Constraint("Horizontal", 20))
sketch8.addConstraint(Sketcher.Constraint("Vertical", 22))
sketch8.addConstraint(Sketcher.Constraint("Horizontal", 24))
sketch8.addConstraint(Sketcher.Constraint("Vertical", 26))
sketch8.addConstraint(Sketcher.Constraint("Horizontal", 28))
sketch8.addConstraint(Sketcher.Constraint("Vertical", 30))
sketch8.addConstraint(Sketcher.Constraint("Equal", 3, 5))
sketch8.addConstraint(Sketcher.Constraint("Equal", 5, 7))
sketch8.addConstraint(Sketcher.Constraint("Equal", 7, 9))
sketch8.addConstraint(Sketcher.Constraint("Equal", 9, 11))
sketch8.addConstraint(Sketcher.Constraint("Equal", 11, 13))
sketch8.addConstraint(Sketcher.Constraint("Equal", 13, 15))
sketch8.addConstraint(Sketcher.Constraint("Equal", 15, 17))
sketch8.addConstraint(Sketcher.Constraint("Equal", 17, 19))
sketch8.addConstraint(Sketcher.Constraint("Equal", 19, 21))
sketch8.addConstraint(Sketcher.Constraint("Equal", 21, 23))
sketch8.addConstraint(Sketcher.Constraint("Equal", 23, 25))
sketch8.addConstraint(Sketcher.Constraint("Equal", 1, 27))
sketch8.addConstraint(Sketcher.Constraint("Equal", 25, 29))
sketch8.addConstraint(Sketcher.Constraint("Equal", 27, 31))
sketch8.addConstraint(Sketcher.Constraint("Symmetric", 17, 3, 23, 3, -2))
sketch8.addConstraint(Sketcher.Constraint("Horizontal", 11, 3, 29, 3))
sketch8.addConstraint(Sketcher.Constraint("Horizontal", 0, 2, 7, 1))
sketch8.addConstraint(Sketcher.Constraint("Vertical", 11, 3, 17, 3))
sketch8.addConstraint(Sketcher.Constraint("Equal", 16, 24))
sketch8.addConstraint(Sketcher.Constraint("Radius", 3, Q("1.999999 mm")))
sketch8.addConstraint(Sketcher.Constraint("Radius", 1, Q("0.6 mm")))
sketch8.addConstraint(Sketcher.Constraint("DistanceX", 20, 2, 20, 1, Q("66 mm")))
sketch8.addConstraint(Sketcher.Constraint("DistanceX", 0, 1, 0, 2, Q("36.8 mm")))
sketch8.addConstraint(Sketcher.Constraint("DistanceX", 4, 1, 4, 2, Q("3.7 mm")))
sketch8.addConstraint(Sketcher.Constraint("DistanceX", 8, 1, 8, 2, Q("4.3 mm")))
sketch8.addConstraint(Sketcher.Constraint("DistanceY", 2, 2, 2, 1, Q("7.7 mm")))
sketch8.addConstraint(Sketcher.Constraint("DistanceX", 12, 2, 12, 1, Q("4.25 mm")))
sketch8.addConstraint(Sketcher.Constraint("DistanceY", 14, 2, 14, 1, Q("9.05 mm")))
sketch8.addConstraint(Sketcher.Constraint("DistanceY", 18, 2, 18, 1, Q("7.25 mm")))
sketch8.addConstraint(Sketcher.Constraint("DistanceY", 10, 2, 10, 1, Q("21.625 mm")))
sketch8.addConstraint(Sketcher.Constraint("DistanceY", -1, 1, 1, 3, Q("24.55 mm")))
pocket6 = body.newObject("PartDesign::Pocket", "Pocket005")
pocket6.Profile = sketch8
pocket6.Length = 4.4
pocket6.Reversed = True

doc.recompute()
